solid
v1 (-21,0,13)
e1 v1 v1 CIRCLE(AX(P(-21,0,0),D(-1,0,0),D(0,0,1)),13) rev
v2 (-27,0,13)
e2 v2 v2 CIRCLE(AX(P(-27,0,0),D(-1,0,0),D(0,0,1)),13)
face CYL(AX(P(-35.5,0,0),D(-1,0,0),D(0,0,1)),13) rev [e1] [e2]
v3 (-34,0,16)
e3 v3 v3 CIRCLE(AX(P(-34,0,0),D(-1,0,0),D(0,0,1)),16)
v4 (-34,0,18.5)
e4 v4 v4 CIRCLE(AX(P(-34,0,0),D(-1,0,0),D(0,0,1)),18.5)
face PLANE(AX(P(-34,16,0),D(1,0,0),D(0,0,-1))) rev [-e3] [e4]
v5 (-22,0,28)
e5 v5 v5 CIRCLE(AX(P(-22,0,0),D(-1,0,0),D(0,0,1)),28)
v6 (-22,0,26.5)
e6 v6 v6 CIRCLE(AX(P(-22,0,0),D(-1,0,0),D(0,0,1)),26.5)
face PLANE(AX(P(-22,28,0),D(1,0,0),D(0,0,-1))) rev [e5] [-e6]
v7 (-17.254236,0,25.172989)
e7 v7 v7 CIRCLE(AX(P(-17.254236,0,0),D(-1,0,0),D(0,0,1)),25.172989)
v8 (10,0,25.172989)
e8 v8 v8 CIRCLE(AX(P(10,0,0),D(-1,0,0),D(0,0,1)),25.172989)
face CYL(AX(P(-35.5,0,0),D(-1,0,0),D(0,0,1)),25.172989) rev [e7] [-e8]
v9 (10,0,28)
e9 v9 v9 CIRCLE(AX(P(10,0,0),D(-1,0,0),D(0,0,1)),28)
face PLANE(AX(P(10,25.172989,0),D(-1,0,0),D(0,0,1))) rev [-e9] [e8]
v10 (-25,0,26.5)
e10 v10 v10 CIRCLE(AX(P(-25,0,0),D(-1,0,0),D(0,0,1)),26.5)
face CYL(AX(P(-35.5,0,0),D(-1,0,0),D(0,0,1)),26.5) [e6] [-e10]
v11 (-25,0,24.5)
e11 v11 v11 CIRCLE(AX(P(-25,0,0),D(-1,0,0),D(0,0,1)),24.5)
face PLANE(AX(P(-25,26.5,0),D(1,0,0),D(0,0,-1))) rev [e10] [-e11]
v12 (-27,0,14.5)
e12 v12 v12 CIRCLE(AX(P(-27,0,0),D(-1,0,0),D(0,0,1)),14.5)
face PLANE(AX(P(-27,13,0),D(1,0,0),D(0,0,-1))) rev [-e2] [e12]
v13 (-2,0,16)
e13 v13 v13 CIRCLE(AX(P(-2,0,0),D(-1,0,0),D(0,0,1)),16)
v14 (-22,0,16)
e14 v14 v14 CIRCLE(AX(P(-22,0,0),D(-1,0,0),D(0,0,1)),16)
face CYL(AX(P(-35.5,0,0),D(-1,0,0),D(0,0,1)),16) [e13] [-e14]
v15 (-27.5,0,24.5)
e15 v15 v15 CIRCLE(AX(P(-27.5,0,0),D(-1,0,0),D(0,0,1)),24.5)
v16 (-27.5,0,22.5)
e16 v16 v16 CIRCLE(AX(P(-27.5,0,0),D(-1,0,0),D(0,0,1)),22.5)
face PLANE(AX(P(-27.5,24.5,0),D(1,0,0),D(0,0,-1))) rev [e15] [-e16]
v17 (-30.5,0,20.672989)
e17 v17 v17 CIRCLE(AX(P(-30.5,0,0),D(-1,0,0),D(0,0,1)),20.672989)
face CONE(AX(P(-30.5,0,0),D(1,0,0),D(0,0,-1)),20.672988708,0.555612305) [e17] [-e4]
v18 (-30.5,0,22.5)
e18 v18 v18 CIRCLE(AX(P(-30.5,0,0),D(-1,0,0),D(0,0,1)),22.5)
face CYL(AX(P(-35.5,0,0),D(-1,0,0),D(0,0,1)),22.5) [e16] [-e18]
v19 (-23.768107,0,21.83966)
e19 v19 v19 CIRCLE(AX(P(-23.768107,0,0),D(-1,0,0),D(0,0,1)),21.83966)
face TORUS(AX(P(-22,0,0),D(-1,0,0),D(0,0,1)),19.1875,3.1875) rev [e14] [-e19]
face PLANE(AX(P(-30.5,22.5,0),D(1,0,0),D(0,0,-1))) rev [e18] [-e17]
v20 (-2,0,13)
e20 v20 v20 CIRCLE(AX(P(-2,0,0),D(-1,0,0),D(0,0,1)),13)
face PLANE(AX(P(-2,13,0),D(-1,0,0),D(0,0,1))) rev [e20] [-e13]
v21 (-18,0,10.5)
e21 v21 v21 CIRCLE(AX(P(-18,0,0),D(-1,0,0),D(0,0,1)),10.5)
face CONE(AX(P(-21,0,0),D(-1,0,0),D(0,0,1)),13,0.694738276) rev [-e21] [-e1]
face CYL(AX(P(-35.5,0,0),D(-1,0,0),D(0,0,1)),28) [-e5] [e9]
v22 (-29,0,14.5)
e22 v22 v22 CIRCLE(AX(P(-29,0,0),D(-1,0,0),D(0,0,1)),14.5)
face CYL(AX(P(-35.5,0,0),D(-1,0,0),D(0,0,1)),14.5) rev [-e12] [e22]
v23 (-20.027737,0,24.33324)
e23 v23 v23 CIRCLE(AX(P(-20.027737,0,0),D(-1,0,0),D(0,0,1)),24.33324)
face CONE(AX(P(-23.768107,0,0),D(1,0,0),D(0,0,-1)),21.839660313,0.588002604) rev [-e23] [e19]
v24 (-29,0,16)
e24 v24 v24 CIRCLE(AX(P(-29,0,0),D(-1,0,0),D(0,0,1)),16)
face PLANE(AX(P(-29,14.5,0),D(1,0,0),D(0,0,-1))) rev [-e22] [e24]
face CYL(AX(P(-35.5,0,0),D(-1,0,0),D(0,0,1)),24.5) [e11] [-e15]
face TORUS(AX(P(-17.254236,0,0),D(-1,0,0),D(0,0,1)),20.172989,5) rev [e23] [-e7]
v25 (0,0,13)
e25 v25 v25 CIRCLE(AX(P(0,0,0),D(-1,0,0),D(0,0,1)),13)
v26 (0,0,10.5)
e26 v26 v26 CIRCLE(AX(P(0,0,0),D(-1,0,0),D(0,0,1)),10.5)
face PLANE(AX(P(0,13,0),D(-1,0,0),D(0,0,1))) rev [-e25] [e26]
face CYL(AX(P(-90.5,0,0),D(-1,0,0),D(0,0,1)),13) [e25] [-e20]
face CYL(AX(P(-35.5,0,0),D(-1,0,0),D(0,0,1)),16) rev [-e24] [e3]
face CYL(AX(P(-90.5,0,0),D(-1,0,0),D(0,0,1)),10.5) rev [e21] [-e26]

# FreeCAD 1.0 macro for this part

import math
import FreeCAD as App
import Part
import Sketcher


def add_polygon(sketch, points):
    """Adds a closed chain of lines whose ends are joined by coincident constraints."""
    first, n = sketch.GeometryCount, len(points)
    for a, b in zip(points, points[1:] + points[:1]):
        sketch.addGeometry(Part.LineSegment(App.Vector(*a, 0), App.Vector(*b, 0)), False)
    for i in range(n):
        sketch.addConstraint(Sketcher.Constraint("Coincident", first + i, 2, first + (i + 1) % n, 1))

doc = App.newDocument("Part")
body = doc.addObject("PartDesign::Body", "Body")

sketch1 = doc.addObject("Sketcher::SketchObject", "Sketch")
body.addObject(sketch1)
sketch1.AttachmentSupport = (doc.XY_Plane, [""])
sketch1.MapMode = "FlatFace"
add_polygon(sketch1, [(-18, 10.5), (0, 10.5), (0, 13), (-21, 13)])
sketch1.addConstraint([
    Sketcher.Constraint("Horizontal", 0),
    Sketcher.Constraint("Vertical", 1),
    Sketcher.Constraint("Horizontal", 2),
    Sketcher.Constraint("PointOnObject", 0, 2, -2),
    Sketcher.Constraint("DistanceX", 0, 1, 0, 2, 18.0),
    Sketcher.Constraint("DistanceX", 2, 2, 2, 1, 21.0),
    Sketcher.Constraint("DistanceY", 1, 1, 1, 2, 2.5),
    Sketcher.Constraint("DistanceY", -1, 1, 1, 2, 13.0),
])
revolution = doc.addObject("PartDesign::Revolution", "Revolution")
body.addObject(revolution)
revolution.Profile = sketch1
revolution.ReferenceAxis = (sketch1, ["H_Axis"])
revolution.Angle = 360

sketch2 = doc.addObject("Sketcher::SketchObject", "Sketch001")
body.addObject(sketch2)
sketch2.AttachmentSupport = (doc.XY_Plane, [""])
sketch2.MapMode = "FlatFace"
sketch2.addGeometry([
    Part.LineSegment(App.Vector(-2, 13, 0), App.Vector(-2, 16, 0)),
    Part.LineSegment(App.Vector(-2, 16, 0), App.Vector(-22, 16, 0)),
    Part.ArcOfCircle(Part.Circle(App.Vector(-22, 19.1875, 0), App.Vector(0, 0, 1), 3.1875), math.radians(123.690068), math.radians(270)),
    Part.LineSegment(App.Vector(-23.768107, 21.83966, 0), App.Vector(-20.027737, 24.33324, 0)),
    Part.ArcOfCircle(Part.Circle(App.Vector(-17.254236, 20.172989, 0), App.Vector(0, 0, 1), 5), math.radians(90), math.radians(123.690067)),
    Part.LineSegment(App.Vector(-17.254236, 25.172989, 0), App.Vector(10, 25.172989, 0)),
    Part.LineSegment(App.Vector(10, 25.172989, 0), App.Vector(10, 28, 0)),
    Part.LineSegment(App.Vector(10, 28, 0), App.Vector(-22, 28, 0)),
    Part.LineSegment(App.Vector(-22, 28, 0), App.Vector(-22, 26.5, 0)),
    Part.LineSegment(App.Vector(-22, 26.5, 0), App.Vector(-25, 26.5, 0)),
    Part.LineSegment(App.Vector(-25, 26.5, 0), App.Vector(-25, 24.5, 0)),
    Part.LineSegment(App.Vector(-25, 24.5, 0), App.Vector(-27.5, 24.5, 0)),
    Part.LineSegment(App.Vector(-27.5, 24.5, 0), App.Vector(-27.5, 22.5, 0)),
    Part.LineSegment(App.Vector(-27.5, 22.5, 0), App.Vector(-30.5, 22.5, 0)),
    Part.LineSegment(App.Vector(-30.5, 22.5, 0), App.Vector(-30.5, 20.672989, 0)),
    Part.LineSegment(App.Vector(-30.5, 20.672989, 0), App.Vector(-34, 18.5, 0)),
    Part.LineSegment(App.Vector(-34, 18.5, 0), App.Vector(-34, 16, 0)),
    Part.LineSegment(App.Vector(-34, 16, 0), App.Vector(-29, 16, 0)),
    Part.LineSegment(App.Vector(-29, 16, 0), App.Vector(-29, 14.5, 0)),
    Part.LineSegment(App.Vector(-29, 14.5, 0), App.Vector(-27, 14.5, 0)),
    Part.LineSegment(App.Vector(-27, 14.5, 0), App.Vector(-27, 13, 0)),
    Part.LineSegment(App.Vector(-27, 13, 0), App.Vector(-2, 13, 0)),
], False)
sketch2.addConstraint([
    Sketcher.Constraint("Coincident", 0, 2, 1, 1),
    Sketcher.Constraint("Tangent", 1, 2, 2, 2),
    Sketcher.Constraint("Tangent", 2, 1, 3, 1),
    Sketcher.Constraint("Tangent", 3, 2, 4, 2),
    Sketcher.Constraint("Tangent", 4, 1, 5, 1),
    Sketcher.Constraint("Coincident", 5, 2, 6, 1),
    Sketcher.Constraint("Coincident", 6, 2, 7, 1),
    Sketcher.Constraint("Coincident", 7, 2, 8, 1),
    Sketcher.Constraint("Coincident", 8, 2, 9, 1),
    Sketcher.Constraint("Coincident", 9, 2, 10, 1),
    Sketcher.Constraint("Coincident", 10, 2, 11, 1),
    Sketcher.Constraint("Coincident", 11, 2, 12, 1),
    Sketcher.Constraint("Coincident", 12, 2, 13, 1),
    Sketcher.Constraint("Coincident", 13, 2, 14, 1),
    Sketcher.Constraint("Coincident", 14, 2, 15, 1),
    Sketcher.Constraint("Coincident", 15, 2, 16, 1),
    Sketcher.Constraint("Coincident", 16, 2, 17, 1),
    Sketcher.Constraint("Coincident", 17, 2, 18, 1),
    Sketcher.Constraint("Coincident", 18, 2, 19, 1),
    Sketcher.Constraint("Coincident", 19, 2, 20, 1),
    Sketcher.Constraint("Coincident", 20, 2, 21, 1),
    Sketcher.Constraint("Coincident", 21, 2, 0, 1),
    Sketcher.Constraint("Vertical", 0),
    Sketcher.Constraint("Horizontal", 1),
    Sketcher.Constraint("Horizontal", 5),
    Sketcher.Constraint("Vertical", 6),
    Sketcher.Constraint("Horizontal", 7),
    Sketcher.Constraint("Vertical", 8),
    Sketcher.Constraint("Horizontal", 9),
    Sketcher.Constraint("Vertical", 10),
    Sketcher.Constraint("Horizontal", 11),
    Sketcher.Constraint("Vertical", 12),
    Sketcher.Constraint("Horizontal", 13),
    Sketcher.Constraint("Vertical", 14),
    Sketcher.Constraint("Vertical", 16),
    Sketcher.Constraint("Horizontal", 17),
    Sketcher.Constraint("Vertical", 18),
    Sketcher.Constraint("Horizontal", 19),
    Sketcher.Constraint("Vertical", 20),
    Sketcher.Constraint("Horizontal", 21),
    Sketcher.Constraint("Horizontal", 1, 2, 16, 2),
    Sketcher.Constraint("Vertical", 1, 2, 7, 2),
    Sketcher.Constraint("Equal", 9, 13),
    Sketcher.Constraint("Equal", 13, 0),
    Sketcher.Constraint("Equal", 19, 10),
    Sketcher.Constraint("Equal", 10, 12),
    Sketcher.Constraint("Equal", 11, 16),
    Sketcher.Constraint("Equal", 8, 18),
    Sketcher.Constraint("Equal", 18, 20),
    Sketcher.Constraint("Radius", 4, 5.0),
    Sketcher.Constraint("DistanceX", 1, 2, 1, 1, 20.0),
    Sketcher.Constraint("DistanceX", 7, 2, 7, 1, 32.0),
    Sketcher.Constraint("DistanceX", 9, 2, 9, 1, 3.0),
    Sketcher.Constraint("DistanceX", 17, 1, 17, 2, 5.0),
    Sketcher.Constraint("DistanceX", 19, 1, 19, 2, 2.0),
    Sketcher.Constraint("DistanceX", 21, 1, 21, 2, 25.0),
    Sketcher.Constraint("DistanceX", 11, 2, 11, 1, 2.5),
    Sketcher.Constraint("DistanceX", 2, 3, -1, 1, 22.0),
    Sketcher.Constraint("DistanceY", -1, 1, 0, 2, 16.0),
    Sketcher.Constraint("DistanceY", -1, 1, 6, 2, 28.0),
    Sketcher.Constraint("Radius", 2, 3.1875),
    Sketcher.Constraint("DistanceY", 6, 1, 6, 2, 2.827011),
    Sketcher.Constraint("DistanceY", 14, 2, 14, 1, 1.827011),
    Sketcher.Constraint("DistanceX", 3, 2, 4, 3, 2.773501),
])
revolution2 = doc.addObject("PartDesign::Revolution", "Revolution001")
body.addObject(revolution2)
revolution2.Profile = sketch2
revolution2.ReferenceAxis = (sketch2, ["H_Axis"])
revolution2.Angle = 360

doc.recompute()
